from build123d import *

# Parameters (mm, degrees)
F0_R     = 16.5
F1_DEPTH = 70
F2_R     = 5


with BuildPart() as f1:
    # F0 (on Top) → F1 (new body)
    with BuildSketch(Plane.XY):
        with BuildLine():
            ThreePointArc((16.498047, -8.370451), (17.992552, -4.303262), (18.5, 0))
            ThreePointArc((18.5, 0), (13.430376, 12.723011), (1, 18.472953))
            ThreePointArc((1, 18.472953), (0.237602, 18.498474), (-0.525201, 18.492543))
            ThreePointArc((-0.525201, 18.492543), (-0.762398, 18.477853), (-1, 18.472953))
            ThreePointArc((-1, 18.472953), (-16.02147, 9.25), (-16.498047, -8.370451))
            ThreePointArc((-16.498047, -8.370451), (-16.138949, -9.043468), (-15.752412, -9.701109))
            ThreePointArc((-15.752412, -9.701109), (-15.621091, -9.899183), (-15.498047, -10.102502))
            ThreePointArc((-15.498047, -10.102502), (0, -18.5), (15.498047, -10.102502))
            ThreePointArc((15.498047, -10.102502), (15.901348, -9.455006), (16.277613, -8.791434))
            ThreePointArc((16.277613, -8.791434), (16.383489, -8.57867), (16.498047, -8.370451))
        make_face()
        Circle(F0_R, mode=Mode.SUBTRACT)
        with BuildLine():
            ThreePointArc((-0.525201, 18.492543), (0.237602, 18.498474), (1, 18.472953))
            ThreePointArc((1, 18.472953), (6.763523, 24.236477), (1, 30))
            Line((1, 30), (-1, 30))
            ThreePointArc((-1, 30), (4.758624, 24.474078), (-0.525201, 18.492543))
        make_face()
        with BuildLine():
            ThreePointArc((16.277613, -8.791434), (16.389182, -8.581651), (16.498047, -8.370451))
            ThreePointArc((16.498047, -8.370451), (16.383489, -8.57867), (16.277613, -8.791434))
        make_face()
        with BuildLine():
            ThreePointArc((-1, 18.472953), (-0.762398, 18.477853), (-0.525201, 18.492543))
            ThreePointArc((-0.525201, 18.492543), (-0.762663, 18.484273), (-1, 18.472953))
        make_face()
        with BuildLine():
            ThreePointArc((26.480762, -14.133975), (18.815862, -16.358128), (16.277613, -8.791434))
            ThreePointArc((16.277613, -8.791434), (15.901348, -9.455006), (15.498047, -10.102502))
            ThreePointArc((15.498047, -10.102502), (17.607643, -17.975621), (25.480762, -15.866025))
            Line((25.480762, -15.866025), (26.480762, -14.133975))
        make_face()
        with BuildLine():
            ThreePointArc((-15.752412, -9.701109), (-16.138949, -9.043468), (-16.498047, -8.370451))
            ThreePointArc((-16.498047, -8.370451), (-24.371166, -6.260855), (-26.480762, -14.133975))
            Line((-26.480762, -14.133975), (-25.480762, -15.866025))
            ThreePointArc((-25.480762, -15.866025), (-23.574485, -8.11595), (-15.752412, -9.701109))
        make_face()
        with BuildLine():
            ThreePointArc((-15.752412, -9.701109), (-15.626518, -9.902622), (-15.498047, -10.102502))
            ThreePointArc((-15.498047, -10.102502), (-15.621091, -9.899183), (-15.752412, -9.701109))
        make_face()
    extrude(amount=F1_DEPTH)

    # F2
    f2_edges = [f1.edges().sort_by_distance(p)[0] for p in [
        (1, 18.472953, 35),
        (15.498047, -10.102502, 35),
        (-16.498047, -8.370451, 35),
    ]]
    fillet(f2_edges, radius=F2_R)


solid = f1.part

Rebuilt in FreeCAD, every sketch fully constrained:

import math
import FreeCAD as App
import Part
import Sketcher

V = App.Vector
Q = App.Units.Quantity


def edges_at(feature, points):
    """Names of the edges that pass closest to the given points."""
    edges = feature.Shape.Edges
    near = lambda p: min(range(len(edges)), key=lambda i: edges[i].distToShape(Part.Vertex(*p))[0])
    return sorted({f"Edge{near(p) + 1}" for p in points})

doc = App.newDocument("Part")
body = doc.addObject("PartDesign::Body", "Body")

# Sketch on XY plane
sketch1 = body.newObject("Sketcher::SketchObject", "Sketch")
sketch1.AttachmentSupport = (doc.getObject("XY_Plane"), [""])
sketch1.MapMode = "FlatFace"
sketch1.addGeometry([
    Part.ArcOfCircle(Part.Circle(V(0, 0, 0), V(0, 0, 1), 18.5), math.radians(-27), math.radians(0)),  # 0
    Part.ArcOfCircle(Part.Circle(V(0, 0, 0), V(0, 0, 1), 18.5), math.radians(0), math.radians(87)),  # 1
    Part.ArcOfCircle(Part.Circle(V(1, 24.24, 0), V(0, 0, 1), 5.76), math.radians(-90), math.radians(90)),  # 2
    Part.LineSegment(V(1, 30, 0), V(-1, 30, 0)),  # 3
    Part.ArcOfCircle(Part.Circle(V(-1, 24.24, 0), V(0, 0, 1), 5.76), math.radians(-85), math.radians(90)),  # 4
    Part.ArcOfCircle(Part.Circle(V(0, 0.01, 0), V(0, 0, 1), 18.49), math.radians(91.63), math.radians(93.1)),  # 5
    Part.ArcOfCircle(Part.Circle(V(0, 0, 0), V(0, 0, 1), 18.5), math.radians(93), math.radians(207)),  # 6
    Part.ArcOfCircle(Part.Circle(V(-21.49, -11.25, 0), V(0, 0, 1), 5.76), math.radians(30), math.radians(210)),  # 7
    Part.LineSegment(V(-26.48, -14.13, 0), V(-25.48, -15.87, 0)),  # 8
    Part.ArcOfCircle(Part.Circle(V(-20.49, -12.98, 0), V(0, 0, 1), 5.76), math.radians(35), math.radians(210)),  # 9
    Part.ArcOfCircle(Part.Circle(V(0, 0, 0), V(0, 0, 1), 18.51), math.radians(-148.37), math.radians(-146.9)),  # 10
    Part.ArcOfCircle(Part.Circle(V(0, 0, 0), V(0, 0, 1), 18.5), math.radians(-147), math.radians(-33)),  # 11
    Part.ArcOfCircle(Part.Circle(V(20.49, -12.98, 0), V(0, 0, 1), 5.76), math.radians(150), math.radians(330)),  # 12
    Part.LineSegment(V(25.48, -15.87, 0), V(26.48, -14.13, 0)),  # 13
    Part.ArcOfCircle(Part.Circle(V(21.49, -11.25, 0), V(0, 0, 1), 5.76), math.radians(155), math.radians(330)),  # 14
    Part.ArcOfCircle(Part.Circle(V(0.01, 0, 0), V(0, 0, 1), 18.49), math.radians(-28.37), math.radians(-26.9)),  # 15
    Part.Circle(V(0, 0, 0), V(0, 0, 1), 16.5),  # 16
], False)
sketch1.addConstraint([
    Sketcher.Constraint("Tangent", 0, 2, 1, 1),
    Sketcher.Constraint("Coincident", 1, 2, 2, 1),
    Sketcher.Constraint("Tangent", 2, 2, 3, 1),
    Sketcher.Constraint("Tangent", 3, 2, 4, 2),
    Sketcher.Constraint("Coincident", 4, 1, 5, 1),
    Sketcher.Constraint("Coincident", 5, 2, 6, 1),
    Sketcher.Constraint("Coincident", 6, 2, 7, 1),
    Sketcher.Constraint("Tangent", 7, 2, 8, 1),
    Sketcher.Constraint("Tangent", 8, 2, 9, 2),
    Sketcher.Constraint("Coincident", 9, 1, 10, 1),
    Sketcher.Constraint("Coincident", 10, 2, 11, 1),
    Sketcher.Constraint("Coincident", 11, 2, 12, 1),
    Sketcher.Constraint("Tangent", 12, 2, 13, 1),
    Sketcher.Constraint("Tangent", 13, 2, 14, 2),
    Sketcher.Constraint("Coincident", 14, 1, 15, 1),
    Sketcher.Constraint("Coincident", 15, 2, 0, 1),
    Sketcher.Constraint("Horizontal", 3),
    Sketcher.Constraint("Coincident", 1, 3, -1, 1),
    Sketcher.Constraint("Coincident", 6, 3, -1, 1),
    Sketcher.Constraint("Coincident", 11, 3, -1, 1),
    Sketcher.Constraint("Coincident", 16, 3, -1, 1),
    Sketcher.Constraint("Equal", 2, 4),
    Sketcher.Constraint("Equal", 1, 6),
    Sketcher.Constraint("Equal", 4, 7),
    Sketcher.Constraint("Equal", 7, 9),
    Sketcher.Constraint("Equal", 6, 11),
    Sketcher.Constraint("Equal", 9, 12),
    Sketcher.Constraint("Equal", 12, 14),
    Sketcher.Constraint("Symmetric", 9, 3, 12, 3, -2),
    Sketcher.Constraint("Symmetric", 7, 3, 14, 3, -2),
    Sketcher.Constraint("Symmetric", 6, 2, 15, 2, -2),
    Sketcher.Constraint("PointOnObject", 0, 2, -1),
    Sketcher.Constraint("Horizontal", 1, 2, 5, 2),
    Sketcher.Constraint("Horizontal", 10, 2, 11, 2),
    Sketcher.Constraint("Vertical", 2, 3, 1, 2),
    Sketcher.Constraint("Vertical", 3, 2, 5, 2),
    Sketcher.Constraint("Diameter", 16, Q("33 mm")),
    Sketcher.Constraint("Radius", 1, Q("18.499999 mm")),
    Sketcher.Constraint("DistanceX", 3, 2, 3, 1, Q("2 mm")),
    Sketcher.Constraint("Angle", 8, Q("-59.999988 deg")),
    Sketcher.Constraint("Distance", 8, Q("1.999999 mm")),
    Sketcher.Constraint("DistanceY", -1, 1, 2, 2, Q("30 mm")),
    Sketcher.Constraint("DistanceX", 6, 2, 10, 2, Q("1 mm")),
    Sketcher.Constraint("Radius", 5, Q("18.494899 mm")),
    Sketcher.Constraint("Radius", 15, Q("18.493528 mm")),
    Sketcher.Constraint("Radius", 10, Q("18.505336 mm")),
    Sketcher.Constraint("DistanceX", 4, 1, -1, 1, Q("0.525201 mm")),
    Sketcher.Constraint("DistanceY", -1, 1, 10, 3, Q("0.00285 mm")),
    Sketcher.Constraint("DistanceX", 8, 2, -1, 1, Q("25.480762 mm")),
    Sketcher.Constraint("DistanceX", 6, 3, 15, 3, Q("0.005738 mm")),
])
pad1 = body.newObject("PartDesign::Pad", "Pad")
pad1.Profile = sketch1
pad1.Length = 70
doc.recompute()

fillet = body.newObject("PartDesign::Fillet", "Fillet")
fillet.Base = (pad1, edges_at(pad1, [(1, 18.473, 35), (15.498, -10.103, 35), (-16.498, -8.37, 35)]))
fillet.Radius = 5

doc.recompute()
